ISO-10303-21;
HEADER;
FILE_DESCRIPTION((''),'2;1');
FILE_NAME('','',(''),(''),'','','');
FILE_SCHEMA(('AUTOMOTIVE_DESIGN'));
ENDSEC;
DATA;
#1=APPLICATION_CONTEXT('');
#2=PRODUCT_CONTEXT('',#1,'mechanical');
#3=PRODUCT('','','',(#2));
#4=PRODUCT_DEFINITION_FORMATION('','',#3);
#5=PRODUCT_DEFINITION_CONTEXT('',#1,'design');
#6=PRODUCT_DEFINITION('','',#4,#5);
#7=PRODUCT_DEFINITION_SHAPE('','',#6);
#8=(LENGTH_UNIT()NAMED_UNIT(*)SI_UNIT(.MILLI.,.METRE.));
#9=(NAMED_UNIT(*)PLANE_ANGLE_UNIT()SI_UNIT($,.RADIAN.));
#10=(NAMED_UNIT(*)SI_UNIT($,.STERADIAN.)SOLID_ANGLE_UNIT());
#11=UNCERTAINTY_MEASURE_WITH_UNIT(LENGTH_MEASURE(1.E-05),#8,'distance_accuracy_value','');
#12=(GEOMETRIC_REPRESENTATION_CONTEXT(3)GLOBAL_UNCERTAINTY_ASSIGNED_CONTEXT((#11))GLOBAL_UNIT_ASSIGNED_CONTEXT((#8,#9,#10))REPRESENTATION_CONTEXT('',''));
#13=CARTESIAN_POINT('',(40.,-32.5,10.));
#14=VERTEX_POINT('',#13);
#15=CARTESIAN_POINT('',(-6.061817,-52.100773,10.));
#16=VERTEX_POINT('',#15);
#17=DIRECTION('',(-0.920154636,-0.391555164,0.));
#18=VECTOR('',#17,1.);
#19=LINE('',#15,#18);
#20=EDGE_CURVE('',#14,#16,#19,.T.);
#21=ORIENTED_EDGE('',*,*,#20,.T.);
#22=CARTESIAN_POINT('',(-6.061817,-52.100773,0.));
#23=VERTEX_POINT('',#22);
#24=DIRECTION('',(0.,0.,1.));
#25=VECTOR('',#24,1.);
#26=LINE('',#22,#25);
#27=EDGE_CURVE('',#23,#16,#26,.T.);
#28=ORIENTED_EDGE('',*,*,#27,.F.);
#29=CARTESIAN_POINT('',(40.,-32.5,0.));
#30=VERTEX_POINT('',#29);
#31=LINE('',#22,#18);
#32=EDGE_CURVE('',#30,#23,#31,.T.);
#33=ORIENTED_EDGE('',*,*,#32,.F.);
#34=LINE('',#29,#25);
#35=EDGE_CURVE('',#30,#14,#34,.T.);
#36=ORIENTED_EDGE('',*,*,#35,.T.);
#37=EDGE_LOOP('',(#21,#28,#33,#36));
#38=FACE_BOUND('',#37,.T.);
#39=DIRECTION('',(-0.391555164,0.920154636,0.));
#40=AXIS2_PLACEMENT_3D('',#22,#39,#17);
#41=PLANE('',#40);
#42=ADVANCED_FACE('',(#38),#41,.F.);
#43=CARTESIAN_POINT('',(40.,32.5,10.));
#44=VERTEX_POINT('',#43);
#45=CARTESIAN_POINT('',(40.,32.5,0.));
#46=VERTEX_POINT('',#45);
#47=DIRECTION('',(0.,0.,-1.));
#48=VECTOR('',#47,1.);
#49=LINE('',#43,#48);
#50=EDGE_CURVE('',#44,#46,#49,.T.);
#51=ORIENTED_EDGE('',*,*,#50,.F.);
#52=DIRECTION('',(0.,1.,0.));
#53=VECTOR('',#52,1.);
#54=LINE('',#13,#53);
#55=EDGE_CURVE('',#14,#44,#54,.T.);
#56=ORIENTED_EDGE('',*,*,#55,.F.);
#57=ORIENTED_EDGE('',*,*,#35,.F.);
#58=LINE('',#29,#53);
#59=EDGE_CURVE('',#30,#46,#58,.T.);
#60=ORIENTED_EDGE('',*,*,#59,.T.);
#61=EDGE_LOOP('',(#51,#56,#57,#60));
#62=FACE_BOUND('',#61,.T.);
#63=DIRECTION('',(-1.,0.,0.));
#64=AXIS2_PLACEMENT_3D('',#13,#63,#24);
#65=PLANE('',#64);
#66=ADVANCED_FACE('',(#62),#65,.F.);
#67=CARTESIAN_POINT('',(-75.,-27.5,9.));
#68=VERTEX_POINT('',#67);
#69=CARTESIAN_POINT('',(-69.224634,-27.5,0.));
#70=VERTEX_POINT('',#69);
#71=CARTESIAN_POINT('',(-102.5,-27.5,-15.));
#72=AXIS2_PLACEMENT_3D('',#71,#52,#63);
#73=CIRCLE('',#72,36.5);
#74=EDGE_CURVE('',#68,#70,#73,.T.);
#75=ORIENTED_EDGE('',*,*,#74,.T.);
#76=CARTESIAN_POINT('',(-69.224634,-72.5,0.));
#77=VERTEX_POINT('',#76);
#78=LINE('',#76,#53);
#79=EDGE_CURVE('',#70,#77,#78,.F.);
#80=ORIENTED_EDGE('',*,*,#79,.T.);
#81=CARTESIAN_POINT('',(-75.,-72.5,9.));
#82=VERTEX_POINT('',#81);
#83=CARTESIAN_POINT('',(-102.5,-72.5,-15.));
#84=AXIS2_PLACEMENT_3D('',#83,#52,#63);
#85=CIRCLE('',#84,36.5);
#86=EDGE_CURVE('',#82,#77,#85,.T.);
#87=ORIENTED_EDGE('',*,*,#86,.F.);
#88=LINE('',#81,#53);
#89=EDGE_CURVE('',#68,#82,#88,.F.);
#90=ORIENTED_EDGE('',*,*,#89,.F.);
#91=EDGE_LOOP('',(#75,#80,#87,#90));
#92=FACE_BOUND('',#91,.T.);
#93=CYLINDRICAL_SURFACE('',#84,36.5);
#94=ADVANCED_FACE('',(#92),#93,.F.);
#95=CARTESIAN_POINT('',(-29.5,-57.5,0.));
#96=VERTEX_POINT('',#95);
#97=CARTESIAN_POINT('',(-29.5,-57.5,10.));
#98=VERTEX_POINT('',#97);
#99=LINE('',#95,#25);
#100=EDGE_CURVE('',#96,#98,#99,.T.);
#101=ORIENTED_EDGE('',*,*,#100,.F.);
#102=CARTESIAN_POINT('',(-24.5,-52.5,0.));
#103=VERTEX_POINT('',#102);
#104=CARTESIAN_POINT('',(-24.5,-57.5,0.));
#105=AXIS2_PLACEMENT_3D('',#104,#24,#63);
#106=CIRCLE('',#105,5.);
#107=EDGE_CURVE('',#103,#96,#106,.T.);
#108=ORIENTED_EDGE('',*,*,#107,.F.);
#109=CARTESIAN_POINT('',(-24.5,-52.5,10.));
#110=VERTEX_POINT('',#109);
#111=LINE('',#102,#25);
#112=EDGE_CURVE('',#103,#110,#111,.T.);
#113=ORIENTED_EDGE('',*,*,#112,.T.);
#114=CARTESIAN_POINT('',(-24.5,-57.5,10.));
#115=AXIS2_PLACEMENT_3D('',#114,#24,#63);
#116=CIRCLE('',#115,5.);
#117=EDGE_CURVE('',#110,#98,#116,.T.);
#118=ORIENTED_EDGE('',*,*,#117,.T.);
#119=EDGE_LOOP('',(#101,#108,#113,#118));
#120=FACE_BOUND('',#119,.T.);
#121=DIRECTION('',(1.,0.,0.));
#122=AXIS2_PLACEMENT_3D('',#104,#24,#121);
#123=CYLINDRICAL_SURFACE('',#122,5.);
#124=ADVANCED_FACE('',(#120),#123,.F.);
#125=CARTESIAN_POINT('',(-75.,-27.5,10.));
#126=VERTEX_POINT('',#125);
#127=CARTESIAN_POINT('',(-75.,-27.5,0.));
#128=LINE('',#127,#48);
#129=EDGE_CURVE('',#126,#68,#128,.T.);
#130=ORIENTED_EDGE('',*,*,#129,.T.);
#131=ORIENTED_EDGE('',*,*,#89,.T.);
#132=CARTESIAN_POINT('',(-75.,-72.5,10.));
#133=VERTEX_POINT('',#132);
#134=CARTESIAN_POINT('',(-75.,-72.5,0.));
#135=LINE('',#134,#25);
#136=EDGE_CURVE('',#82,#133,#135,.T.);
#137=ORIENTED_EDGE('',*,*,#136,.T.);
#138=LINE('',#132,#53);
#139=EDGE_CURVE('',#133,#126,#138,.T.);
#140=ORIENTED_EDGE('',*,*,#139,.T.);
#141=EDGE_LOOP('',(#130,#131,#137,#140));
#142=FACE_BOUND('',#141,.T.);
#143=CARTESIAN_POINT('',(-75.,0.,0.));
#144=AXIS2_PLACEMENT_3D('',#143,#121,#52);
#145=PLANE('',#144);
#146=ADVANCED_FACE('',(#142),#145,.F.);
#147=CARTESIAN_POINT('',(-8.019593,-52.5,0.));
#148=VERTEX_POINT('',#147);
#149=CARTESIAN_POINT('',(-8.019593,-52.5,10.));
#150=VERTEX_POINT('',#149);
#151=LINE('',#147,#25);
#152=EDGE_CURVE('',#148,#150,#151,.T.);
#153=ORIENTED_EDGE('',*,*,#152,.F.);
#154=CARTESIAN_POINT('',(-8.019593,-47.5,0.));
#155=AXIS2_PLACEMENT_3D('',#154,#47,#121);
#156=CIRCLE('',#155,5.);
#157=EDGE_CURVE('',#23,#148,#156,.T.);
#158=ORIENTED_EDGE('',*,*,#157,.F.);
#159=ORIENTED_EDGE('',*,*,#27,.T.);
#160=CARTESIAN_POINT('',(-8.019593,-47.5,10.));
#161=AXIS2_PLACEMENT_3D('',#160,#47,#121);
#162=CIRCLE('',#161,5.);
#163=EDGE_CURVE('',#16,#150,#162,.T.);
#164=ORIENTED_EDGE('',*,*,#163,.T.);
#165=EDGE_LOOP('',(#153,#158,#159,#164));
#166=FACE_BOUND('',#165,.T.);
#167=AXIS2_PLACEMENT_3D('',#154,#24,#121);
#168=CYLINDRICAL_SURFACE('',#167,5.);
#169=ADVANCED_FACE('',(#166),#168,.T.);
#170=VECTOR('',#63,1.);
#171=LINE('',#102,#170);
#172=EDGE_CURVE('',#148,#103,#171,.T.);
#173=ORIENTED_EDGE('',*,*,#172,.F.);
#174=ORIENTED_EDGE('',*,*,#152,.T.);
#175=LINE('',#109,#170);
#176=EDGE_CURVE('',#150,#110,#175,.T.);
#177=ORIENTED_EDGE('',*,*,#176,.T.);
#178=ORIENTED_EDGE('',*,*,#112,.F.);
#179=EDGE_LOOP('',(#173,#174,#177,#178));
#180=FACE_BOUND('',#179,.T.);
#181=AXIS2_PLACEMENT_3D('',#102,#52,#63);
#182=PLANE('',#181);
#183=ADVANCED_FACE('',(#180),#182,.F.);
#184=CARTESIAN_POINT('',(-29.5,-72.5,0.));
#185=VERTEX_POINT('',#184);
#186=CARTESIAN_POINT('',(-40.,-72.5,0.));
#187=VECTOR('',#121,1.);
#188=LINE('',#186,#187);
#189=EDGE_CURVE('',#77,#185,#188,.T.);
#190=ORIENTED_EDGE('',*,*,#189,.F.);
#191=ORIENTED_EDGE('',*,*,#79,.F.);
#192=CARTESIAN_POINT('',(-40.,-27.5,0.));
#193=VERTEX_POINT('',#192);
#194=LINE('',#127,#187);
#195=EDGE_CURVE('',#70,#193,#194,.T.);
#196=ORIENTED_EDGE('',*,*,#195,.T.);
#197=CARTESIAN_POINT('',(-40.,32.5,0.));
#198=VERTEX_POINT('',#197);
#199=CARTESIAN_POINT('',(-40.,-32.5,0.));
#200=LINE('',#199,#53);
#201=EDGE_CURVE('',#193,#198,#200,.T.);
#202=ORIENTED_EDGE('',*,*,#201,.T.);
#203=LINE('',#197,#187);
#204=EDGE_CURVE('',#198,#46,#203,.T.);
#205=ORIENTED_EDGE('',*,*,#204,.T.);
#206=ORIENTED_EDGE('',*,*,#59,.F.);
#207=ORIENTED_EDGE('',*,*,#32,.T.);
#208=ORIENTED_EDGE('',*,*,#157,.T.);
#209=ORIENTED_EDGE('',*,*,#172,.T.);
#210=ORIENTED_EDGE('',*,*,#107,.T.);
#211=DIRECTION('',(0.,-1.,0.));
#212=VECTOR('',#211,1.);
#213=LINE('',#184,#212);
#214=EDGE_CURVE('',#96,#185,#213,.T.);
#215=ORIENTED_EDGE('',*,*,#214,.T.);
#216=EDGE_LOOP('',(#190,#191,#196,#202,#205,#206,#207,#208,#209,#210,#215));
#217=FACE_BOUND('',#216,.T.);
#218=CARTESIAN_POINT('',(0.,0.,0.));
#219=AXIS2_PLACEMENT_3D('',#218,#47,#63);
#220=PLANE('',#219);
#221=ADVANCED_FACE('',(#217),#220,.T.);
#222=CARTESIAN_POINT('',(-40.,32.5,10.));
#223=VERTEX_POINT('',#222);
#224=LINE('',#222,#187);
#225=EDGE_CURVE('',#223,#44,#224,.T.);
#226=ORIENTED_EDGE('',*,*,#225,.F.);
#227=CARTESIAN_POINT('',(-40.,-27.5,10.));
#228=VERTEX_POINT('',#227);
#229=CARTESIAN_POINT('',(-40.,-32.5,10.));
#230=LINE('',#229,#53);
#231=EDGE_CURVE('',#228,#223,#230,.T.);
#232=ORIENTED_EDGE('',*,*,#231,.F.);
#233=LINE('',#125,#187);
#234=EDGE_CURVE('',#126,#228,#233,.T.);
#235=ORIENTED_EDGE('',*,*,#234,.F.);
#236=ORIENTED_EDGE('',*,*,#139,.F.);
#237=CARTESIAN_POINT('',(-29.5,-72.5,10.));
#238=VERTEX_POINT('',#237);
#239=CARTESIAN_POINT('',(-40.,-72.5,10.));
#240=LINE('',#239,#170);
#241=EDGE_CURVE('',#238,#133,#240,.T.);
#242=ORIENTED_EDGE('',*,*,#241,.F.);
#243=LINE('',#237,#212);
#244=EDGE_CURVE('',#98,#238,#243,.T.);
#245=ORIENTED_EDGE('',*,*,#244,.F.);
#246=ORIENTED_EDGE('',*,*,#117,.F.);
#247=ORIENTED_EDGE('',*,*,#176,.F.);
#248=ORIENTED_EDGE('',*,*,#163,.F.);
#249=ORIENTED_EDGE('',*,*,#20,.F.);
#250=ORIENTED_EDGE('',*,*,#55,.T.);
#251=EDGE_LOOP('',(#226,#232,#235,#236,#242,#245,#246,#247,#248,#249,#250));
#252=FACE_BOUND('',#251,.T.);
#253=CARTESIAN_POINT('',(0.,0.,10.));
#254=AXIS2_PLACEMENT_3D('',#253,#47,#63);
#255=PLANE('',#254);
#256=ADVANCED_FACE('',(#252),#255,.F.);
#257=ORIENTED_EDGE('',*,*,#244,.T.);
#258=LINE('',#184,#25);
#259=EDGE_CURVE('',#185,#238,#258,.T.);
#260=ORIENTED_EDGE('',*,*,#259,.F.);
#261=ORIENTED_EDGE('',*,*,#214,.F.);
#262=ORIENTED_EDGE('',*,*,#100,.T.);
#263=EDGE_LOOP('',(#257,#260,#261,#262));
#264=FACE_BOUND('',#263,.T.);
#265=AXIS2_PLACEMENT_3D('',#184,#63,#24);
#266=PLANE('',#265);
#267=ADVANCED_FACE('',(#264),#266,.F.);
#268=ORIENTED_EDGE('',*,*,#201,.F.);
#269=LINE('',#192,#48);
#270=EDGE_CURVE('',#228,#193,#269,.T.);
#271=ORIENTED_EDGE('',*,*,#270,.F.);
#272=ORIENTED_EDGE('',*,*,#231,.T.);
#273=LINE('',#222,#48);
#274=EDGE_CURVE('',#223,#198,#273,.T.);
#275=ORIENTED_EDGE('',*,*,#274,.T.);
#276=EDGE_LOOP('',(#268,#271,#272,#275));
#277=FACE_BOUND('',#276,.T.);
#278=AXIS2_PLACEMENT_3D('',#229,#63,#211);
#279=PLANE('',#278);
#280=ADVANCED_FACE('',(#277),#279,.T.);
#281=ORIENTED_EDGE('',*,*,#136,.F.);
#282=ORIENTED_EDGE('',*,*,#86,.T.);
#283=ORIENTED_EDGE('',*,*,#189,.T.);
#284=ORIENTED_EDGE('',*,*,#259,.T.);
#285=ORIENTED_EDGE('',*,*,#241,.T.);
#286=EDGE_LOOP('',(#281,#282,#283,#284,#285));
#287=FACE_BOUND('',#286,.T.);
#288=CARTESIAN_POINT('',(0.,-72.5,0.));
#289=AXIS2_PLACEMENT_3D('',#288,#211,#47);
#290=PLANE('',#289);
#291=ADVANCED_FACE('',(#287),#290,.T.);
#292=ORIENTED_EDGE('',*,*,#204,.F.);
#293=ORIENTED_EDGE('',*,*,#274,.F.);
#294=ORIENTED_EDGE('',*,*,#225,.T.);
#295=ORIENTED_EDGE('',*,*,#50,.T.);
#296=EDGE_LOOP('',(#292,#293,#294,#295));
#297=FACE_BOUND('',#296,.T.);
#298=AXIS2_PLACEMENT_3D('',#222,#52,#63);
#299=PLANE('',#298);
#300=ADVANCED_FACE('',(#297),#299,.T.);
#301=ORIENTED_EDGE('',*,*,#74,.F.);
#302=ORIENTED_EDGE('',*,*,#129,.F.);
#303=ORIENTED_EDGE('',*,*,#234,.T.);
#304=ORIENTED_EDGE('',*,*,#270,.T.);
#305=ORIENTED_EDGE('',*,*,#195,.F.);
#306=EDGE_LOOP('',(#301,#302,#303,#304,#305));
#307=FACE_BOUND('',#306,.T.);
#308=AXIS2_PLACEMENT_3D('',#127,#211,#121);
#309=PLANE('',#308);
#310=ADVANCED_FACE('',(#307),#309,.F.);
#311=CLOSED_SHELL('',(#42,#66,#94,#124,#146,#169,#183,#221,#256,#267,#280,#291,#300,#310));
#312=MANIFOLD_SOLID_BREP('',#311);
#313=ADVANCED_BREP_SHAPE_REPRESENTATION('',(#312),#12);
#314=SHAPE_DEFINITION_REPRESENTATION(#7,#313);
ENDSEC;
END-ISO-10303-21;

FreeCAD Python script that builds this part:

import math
import FreeCAD as App
import Part
import Sketcher

V = App.Vector

doc = App.newDocument("Part")
body = doc.addObject("PartDesign::Body", "Body")

# Sketch on XY plane
sketch1 = body.newObject("Sketcher::SketchObject", "Sketch")
sketch1.AttachmentSupport = (doc.getObject("XY_Plane"), [""])
sketch1.MapMode = "FlatFace"
sketch1.addGeometry([
    Part.LineSegment(V(-40, 32, 0), V(-40, -32, 0)),
    Part.LineSegment(V(-40, -32, 0), V(40, -32, 0)),
    Part.LineSegment(V(40, -32, 0), V(40, 32, 0)),
    Part.LineSegment(V(40, 32, 0), V(-40, 32, 0)),
], False)
sketch1.addConstraint([
    Sketcher.Constraint("Coincident", 0, 2, 1, 1),
    Sketcher.Constraint("Coincident", 1, 2, 2, 1),
    Sketcher.Constraint("Coincident", 2, 2, 3, 1),
    Sketcher.Constraint("Coincident", 3, 2, 0, 1),
    Sketcher.Constraint("Vertical", 0),
    Sketcher.Constraint("Horizontal", 1),
    Sketcher.Constraint("Vertical", 2),
    Sketcher.Constraint("Horizontal", 3),
    Sketcher.Constraint("Symmetric", 0, 2, 2, 2, -1, 1),
    Sketcher.Constraint("DistanceX", 1, 1, 1, 2, 80.0),
    Sketcher.Constraint("DistanceY", 0, 2, 0, 1, 65.0),
])
pad1 = body.newObject("PartDesign::Pad", "Pad")
pad1.Profile = sketch1
pad1.Length = 10

# Sketch on XZ plane
sketch2 = body.newObject("Sketcher::SketchObject", "Sketch001")
sketch2.AttachmentSupport = (doc.getObject("XZ_Plane"), [""])
sketch2.MapMode = "FlatFace"
sketch2.AttachmentOffset = App.Placement(V(0, 0, 32.5), App.Rotation())
sketch2.addGeometry([
    Part.LineSegment(V(-40, 10, 0), V(-40, 0, 0)),
    Part.LineSegment(V(-40, 0, 0), V(40, 0, 0)),
    Part.LineSegment(V(40, 0, 0), V(40, 10, 0)),
    Part.LineSegment(V(40, 10, 0), V(-40, 10, 0)),
], False)
sketch2.addConstraint([
    Sketcher.Constraint("Coincident", 0, 2, 1, 1),
    Sketcher.Constraint("Coincident", 1, 2, 2, 1),
    Sketcher.Constraint("Coincident", 2, 2, 3, 1),
    Sketcher.Constraint("Coincident", 3, 2, 0, 1),
    Sketcher.Constraint("Vertical", 0),
    Sketcher.Constraint("Horizontal", 1),
    Sketcher.Constraint("Vertical", 2),
    Sketcher.Constraint("Horizontal", 3),
    Sketcher.Constraint("Symmetric", 0, 2, 1, 2, -1, 1),
    Sketcher.Constraint("DistanceX", 1, 1, 1, 2, 80.0),
    Sketcher.Constraint("DistanceY", 0, 2, 0, 1, 10.0),
])
pad2 = body.newObject("PartDesign::Pad", "Pad001")
pad2.Profile = sketch2
pad2.Length = 40

# Sketch on YZ plane
sketch3 = body.newObject("Sketcher::SketchObject", "Sketch002")
sketch3.AttachmentSupport = (doc.getObject("YZ_Plane"), [""])
sketch3.MapMode = "FlatFace"
sketch3.AttachmentOffset = App.Placement(V(0, 0, -40), App.Rotation())
sketch3.addGeometry([
    Part.LineSegment(V(-28, 0, 0), V(-72, 0, 0)),
    Part.LineSegment(V(-72, 0, 0), V(-72, 10, 0)),
    Part.LineSegment(V(-72, 10, 0), V(-28, 10, 0)),
    Part.LineSegment(V(-28, 10, 0), V(-28, 0, 0)),
], False)
sketch3.addConstraint([
    Sketcher.Constraint("Coincident", 0, 2, 1, 1),
    Sketcher.Constraint("Coincident", 1, 2, 2, 1),
    Sketcher.Constraint("Coincident", 2, 2, 3, 1),
    Sketcher.Constraint("Coincident", 3, 2, 0, 1),
    Sketcher.Constraint("Horizontal", 0),
    Sketcher.Constraint("Vertical", 1),
    Sketcher.Constraint("Horizontal", 2),
    Sketcher.Constraint("Vertical", 3),
    Sketcher.Constraint("PointOnObject", 0, 2, -1),
    Sketcher.Constraint("DistanceX", 0, 2, 0, 1, 45.0),
    Sketcher.Constraint("DistanceY", 1, 1, 1, 2, 10.0),
    Sketcher.Constraint("DistanceX", 0, 2, -1, 1, 72.5),
])
pad3 = body.newObject("PartDesign::Pad", "Pad002")
pad3.Profile = sketch3
pad3.Length = 35
pad3.Reversed = True

# Sketch on XZ plane
sketch4 = body.newObject("Sketcher::SketchObject", "Sketch003")
sketch4.AttachmentSupport = (doc.getObject("XZ_Plane"), [""])
sketch4.MapMode = "FlatFace"
sketch4.AttachmentOffset = App.Placement(V(0, 0, 27.5), App.Rotation())
sketch4.addGeometry(Part.Circle(V(-102, -15, 0), V(0, 0, 1), 36), False)
sketch4.addConstraint([
    Sketcher.Constraint("Diameter", 0, 73.0),
    Sketcher.Constraint("DistanceY", 0, 3, -1, 1, 15.0),
    Sketcher.Constraint("DistanceX", 0, 3, -1, 1, 102.5),
])
pocket1 = body.newObject("PartDesign::Pocket", "Pocket")
pocket1.Profile = sketch4
pocket1.Type = "ThroughAll"
pocket1.Reversed = True

# Sketch on XY plane
sketch5 = body.newObject("Sketcher::SketchObject", "Sketch004")
sketch5.AttachmentSupport = (doc.getObject("XY_Plane"), [""])
sketch5.MapMode = "FlatFace"
sketch5.AttachmentOffset = App.Placement(V(0, 0, 10), App.Rotation())
sketch5.addGeometry([
    Part.LineSegment(V(-29.5, -72.5, 0), V(40, -72.5, 0)),  # 0
    Part.LineSegment(V(40, -72.5, 0), V(40, -32.5, 0)),  # 1
    Part.LineSegment(V(40, -32.5, 0), V(-6.1, -52.1, 0)),  # 2
    Part.ArcOfCircle(Part.Circle(V(-8, -47.5, 0), V(0, 0, 1), 5), math.radians(-90), math.radians(-67)),  # 3
    Part.LineSegment(V(-8, -52.5, 0), V(-24.5, -52.5, 0)),  # 4
    Part.ArcOfCircle(Part.Circle(V(-24.5, -57.5, 0), V(0, 0, 1), 5), math.radians(90), math.radians(180)),  # 5
    Part.LineSegment(V(-29.5, -57.5, 0), V(-29.5, -72.5, 0)),  # 6
], False)
sketch5.addConstraint([
    Sketcher.Constraint("Coincident", 0, 2, 1, 1),
    Sketcher.Constraint("Coincident", 1, 2, 2, 1),
    Sketcher.Constraint("Tangent", 2, 2, 3, 2),
    Sketcher.Constraint("Tangent", 3, 1, 4, 1),
    Sketcher.Constraint("Tangent", 4, 2, 5, 1),
    Sketcher.Constraint("Tangent", 5, 2, 6, 1),
    Sketcher.Constraint("Coincident", 6, 2, 0, 1),
    Sketcher.Constraint("Horizontal", 0),
    Sketcher.Constraint("Vertical", 1),
    Sketcher.Constraint("Horizontal", 4),
    Sketcher.Constraint("Vertical", 6),
    Sketcher.Constraint("Equal", 3, 5),
    Sketcher.Constraint("Radius", 3, 5.0),
    Sketcher.Constraint("DistanceY", 1, 1, 1, 2, 40.0),
    Sketcher.Constraint("DistanceY", 6, 2, 6, 1, 15.0),
    Sketcher.Constraint("DistanceX", 0, 1, 0, 2, 69.5),
    Sketcher.Constraint("DistanceX", -1, 1, 0, 2, 40.0),
    Sketcher.Constraint("DistanceY", 3, 3, -1, 1, 47.5),
    Sketcher.Constraint("Distance", 2, 50.058778),
])
pocket2 = body.newObject("PartDesign::Pocket", "Pocket001")
pocket2.Profile = sketch5
pocket2.Type = "ThroughAll"

doc.recompute()
